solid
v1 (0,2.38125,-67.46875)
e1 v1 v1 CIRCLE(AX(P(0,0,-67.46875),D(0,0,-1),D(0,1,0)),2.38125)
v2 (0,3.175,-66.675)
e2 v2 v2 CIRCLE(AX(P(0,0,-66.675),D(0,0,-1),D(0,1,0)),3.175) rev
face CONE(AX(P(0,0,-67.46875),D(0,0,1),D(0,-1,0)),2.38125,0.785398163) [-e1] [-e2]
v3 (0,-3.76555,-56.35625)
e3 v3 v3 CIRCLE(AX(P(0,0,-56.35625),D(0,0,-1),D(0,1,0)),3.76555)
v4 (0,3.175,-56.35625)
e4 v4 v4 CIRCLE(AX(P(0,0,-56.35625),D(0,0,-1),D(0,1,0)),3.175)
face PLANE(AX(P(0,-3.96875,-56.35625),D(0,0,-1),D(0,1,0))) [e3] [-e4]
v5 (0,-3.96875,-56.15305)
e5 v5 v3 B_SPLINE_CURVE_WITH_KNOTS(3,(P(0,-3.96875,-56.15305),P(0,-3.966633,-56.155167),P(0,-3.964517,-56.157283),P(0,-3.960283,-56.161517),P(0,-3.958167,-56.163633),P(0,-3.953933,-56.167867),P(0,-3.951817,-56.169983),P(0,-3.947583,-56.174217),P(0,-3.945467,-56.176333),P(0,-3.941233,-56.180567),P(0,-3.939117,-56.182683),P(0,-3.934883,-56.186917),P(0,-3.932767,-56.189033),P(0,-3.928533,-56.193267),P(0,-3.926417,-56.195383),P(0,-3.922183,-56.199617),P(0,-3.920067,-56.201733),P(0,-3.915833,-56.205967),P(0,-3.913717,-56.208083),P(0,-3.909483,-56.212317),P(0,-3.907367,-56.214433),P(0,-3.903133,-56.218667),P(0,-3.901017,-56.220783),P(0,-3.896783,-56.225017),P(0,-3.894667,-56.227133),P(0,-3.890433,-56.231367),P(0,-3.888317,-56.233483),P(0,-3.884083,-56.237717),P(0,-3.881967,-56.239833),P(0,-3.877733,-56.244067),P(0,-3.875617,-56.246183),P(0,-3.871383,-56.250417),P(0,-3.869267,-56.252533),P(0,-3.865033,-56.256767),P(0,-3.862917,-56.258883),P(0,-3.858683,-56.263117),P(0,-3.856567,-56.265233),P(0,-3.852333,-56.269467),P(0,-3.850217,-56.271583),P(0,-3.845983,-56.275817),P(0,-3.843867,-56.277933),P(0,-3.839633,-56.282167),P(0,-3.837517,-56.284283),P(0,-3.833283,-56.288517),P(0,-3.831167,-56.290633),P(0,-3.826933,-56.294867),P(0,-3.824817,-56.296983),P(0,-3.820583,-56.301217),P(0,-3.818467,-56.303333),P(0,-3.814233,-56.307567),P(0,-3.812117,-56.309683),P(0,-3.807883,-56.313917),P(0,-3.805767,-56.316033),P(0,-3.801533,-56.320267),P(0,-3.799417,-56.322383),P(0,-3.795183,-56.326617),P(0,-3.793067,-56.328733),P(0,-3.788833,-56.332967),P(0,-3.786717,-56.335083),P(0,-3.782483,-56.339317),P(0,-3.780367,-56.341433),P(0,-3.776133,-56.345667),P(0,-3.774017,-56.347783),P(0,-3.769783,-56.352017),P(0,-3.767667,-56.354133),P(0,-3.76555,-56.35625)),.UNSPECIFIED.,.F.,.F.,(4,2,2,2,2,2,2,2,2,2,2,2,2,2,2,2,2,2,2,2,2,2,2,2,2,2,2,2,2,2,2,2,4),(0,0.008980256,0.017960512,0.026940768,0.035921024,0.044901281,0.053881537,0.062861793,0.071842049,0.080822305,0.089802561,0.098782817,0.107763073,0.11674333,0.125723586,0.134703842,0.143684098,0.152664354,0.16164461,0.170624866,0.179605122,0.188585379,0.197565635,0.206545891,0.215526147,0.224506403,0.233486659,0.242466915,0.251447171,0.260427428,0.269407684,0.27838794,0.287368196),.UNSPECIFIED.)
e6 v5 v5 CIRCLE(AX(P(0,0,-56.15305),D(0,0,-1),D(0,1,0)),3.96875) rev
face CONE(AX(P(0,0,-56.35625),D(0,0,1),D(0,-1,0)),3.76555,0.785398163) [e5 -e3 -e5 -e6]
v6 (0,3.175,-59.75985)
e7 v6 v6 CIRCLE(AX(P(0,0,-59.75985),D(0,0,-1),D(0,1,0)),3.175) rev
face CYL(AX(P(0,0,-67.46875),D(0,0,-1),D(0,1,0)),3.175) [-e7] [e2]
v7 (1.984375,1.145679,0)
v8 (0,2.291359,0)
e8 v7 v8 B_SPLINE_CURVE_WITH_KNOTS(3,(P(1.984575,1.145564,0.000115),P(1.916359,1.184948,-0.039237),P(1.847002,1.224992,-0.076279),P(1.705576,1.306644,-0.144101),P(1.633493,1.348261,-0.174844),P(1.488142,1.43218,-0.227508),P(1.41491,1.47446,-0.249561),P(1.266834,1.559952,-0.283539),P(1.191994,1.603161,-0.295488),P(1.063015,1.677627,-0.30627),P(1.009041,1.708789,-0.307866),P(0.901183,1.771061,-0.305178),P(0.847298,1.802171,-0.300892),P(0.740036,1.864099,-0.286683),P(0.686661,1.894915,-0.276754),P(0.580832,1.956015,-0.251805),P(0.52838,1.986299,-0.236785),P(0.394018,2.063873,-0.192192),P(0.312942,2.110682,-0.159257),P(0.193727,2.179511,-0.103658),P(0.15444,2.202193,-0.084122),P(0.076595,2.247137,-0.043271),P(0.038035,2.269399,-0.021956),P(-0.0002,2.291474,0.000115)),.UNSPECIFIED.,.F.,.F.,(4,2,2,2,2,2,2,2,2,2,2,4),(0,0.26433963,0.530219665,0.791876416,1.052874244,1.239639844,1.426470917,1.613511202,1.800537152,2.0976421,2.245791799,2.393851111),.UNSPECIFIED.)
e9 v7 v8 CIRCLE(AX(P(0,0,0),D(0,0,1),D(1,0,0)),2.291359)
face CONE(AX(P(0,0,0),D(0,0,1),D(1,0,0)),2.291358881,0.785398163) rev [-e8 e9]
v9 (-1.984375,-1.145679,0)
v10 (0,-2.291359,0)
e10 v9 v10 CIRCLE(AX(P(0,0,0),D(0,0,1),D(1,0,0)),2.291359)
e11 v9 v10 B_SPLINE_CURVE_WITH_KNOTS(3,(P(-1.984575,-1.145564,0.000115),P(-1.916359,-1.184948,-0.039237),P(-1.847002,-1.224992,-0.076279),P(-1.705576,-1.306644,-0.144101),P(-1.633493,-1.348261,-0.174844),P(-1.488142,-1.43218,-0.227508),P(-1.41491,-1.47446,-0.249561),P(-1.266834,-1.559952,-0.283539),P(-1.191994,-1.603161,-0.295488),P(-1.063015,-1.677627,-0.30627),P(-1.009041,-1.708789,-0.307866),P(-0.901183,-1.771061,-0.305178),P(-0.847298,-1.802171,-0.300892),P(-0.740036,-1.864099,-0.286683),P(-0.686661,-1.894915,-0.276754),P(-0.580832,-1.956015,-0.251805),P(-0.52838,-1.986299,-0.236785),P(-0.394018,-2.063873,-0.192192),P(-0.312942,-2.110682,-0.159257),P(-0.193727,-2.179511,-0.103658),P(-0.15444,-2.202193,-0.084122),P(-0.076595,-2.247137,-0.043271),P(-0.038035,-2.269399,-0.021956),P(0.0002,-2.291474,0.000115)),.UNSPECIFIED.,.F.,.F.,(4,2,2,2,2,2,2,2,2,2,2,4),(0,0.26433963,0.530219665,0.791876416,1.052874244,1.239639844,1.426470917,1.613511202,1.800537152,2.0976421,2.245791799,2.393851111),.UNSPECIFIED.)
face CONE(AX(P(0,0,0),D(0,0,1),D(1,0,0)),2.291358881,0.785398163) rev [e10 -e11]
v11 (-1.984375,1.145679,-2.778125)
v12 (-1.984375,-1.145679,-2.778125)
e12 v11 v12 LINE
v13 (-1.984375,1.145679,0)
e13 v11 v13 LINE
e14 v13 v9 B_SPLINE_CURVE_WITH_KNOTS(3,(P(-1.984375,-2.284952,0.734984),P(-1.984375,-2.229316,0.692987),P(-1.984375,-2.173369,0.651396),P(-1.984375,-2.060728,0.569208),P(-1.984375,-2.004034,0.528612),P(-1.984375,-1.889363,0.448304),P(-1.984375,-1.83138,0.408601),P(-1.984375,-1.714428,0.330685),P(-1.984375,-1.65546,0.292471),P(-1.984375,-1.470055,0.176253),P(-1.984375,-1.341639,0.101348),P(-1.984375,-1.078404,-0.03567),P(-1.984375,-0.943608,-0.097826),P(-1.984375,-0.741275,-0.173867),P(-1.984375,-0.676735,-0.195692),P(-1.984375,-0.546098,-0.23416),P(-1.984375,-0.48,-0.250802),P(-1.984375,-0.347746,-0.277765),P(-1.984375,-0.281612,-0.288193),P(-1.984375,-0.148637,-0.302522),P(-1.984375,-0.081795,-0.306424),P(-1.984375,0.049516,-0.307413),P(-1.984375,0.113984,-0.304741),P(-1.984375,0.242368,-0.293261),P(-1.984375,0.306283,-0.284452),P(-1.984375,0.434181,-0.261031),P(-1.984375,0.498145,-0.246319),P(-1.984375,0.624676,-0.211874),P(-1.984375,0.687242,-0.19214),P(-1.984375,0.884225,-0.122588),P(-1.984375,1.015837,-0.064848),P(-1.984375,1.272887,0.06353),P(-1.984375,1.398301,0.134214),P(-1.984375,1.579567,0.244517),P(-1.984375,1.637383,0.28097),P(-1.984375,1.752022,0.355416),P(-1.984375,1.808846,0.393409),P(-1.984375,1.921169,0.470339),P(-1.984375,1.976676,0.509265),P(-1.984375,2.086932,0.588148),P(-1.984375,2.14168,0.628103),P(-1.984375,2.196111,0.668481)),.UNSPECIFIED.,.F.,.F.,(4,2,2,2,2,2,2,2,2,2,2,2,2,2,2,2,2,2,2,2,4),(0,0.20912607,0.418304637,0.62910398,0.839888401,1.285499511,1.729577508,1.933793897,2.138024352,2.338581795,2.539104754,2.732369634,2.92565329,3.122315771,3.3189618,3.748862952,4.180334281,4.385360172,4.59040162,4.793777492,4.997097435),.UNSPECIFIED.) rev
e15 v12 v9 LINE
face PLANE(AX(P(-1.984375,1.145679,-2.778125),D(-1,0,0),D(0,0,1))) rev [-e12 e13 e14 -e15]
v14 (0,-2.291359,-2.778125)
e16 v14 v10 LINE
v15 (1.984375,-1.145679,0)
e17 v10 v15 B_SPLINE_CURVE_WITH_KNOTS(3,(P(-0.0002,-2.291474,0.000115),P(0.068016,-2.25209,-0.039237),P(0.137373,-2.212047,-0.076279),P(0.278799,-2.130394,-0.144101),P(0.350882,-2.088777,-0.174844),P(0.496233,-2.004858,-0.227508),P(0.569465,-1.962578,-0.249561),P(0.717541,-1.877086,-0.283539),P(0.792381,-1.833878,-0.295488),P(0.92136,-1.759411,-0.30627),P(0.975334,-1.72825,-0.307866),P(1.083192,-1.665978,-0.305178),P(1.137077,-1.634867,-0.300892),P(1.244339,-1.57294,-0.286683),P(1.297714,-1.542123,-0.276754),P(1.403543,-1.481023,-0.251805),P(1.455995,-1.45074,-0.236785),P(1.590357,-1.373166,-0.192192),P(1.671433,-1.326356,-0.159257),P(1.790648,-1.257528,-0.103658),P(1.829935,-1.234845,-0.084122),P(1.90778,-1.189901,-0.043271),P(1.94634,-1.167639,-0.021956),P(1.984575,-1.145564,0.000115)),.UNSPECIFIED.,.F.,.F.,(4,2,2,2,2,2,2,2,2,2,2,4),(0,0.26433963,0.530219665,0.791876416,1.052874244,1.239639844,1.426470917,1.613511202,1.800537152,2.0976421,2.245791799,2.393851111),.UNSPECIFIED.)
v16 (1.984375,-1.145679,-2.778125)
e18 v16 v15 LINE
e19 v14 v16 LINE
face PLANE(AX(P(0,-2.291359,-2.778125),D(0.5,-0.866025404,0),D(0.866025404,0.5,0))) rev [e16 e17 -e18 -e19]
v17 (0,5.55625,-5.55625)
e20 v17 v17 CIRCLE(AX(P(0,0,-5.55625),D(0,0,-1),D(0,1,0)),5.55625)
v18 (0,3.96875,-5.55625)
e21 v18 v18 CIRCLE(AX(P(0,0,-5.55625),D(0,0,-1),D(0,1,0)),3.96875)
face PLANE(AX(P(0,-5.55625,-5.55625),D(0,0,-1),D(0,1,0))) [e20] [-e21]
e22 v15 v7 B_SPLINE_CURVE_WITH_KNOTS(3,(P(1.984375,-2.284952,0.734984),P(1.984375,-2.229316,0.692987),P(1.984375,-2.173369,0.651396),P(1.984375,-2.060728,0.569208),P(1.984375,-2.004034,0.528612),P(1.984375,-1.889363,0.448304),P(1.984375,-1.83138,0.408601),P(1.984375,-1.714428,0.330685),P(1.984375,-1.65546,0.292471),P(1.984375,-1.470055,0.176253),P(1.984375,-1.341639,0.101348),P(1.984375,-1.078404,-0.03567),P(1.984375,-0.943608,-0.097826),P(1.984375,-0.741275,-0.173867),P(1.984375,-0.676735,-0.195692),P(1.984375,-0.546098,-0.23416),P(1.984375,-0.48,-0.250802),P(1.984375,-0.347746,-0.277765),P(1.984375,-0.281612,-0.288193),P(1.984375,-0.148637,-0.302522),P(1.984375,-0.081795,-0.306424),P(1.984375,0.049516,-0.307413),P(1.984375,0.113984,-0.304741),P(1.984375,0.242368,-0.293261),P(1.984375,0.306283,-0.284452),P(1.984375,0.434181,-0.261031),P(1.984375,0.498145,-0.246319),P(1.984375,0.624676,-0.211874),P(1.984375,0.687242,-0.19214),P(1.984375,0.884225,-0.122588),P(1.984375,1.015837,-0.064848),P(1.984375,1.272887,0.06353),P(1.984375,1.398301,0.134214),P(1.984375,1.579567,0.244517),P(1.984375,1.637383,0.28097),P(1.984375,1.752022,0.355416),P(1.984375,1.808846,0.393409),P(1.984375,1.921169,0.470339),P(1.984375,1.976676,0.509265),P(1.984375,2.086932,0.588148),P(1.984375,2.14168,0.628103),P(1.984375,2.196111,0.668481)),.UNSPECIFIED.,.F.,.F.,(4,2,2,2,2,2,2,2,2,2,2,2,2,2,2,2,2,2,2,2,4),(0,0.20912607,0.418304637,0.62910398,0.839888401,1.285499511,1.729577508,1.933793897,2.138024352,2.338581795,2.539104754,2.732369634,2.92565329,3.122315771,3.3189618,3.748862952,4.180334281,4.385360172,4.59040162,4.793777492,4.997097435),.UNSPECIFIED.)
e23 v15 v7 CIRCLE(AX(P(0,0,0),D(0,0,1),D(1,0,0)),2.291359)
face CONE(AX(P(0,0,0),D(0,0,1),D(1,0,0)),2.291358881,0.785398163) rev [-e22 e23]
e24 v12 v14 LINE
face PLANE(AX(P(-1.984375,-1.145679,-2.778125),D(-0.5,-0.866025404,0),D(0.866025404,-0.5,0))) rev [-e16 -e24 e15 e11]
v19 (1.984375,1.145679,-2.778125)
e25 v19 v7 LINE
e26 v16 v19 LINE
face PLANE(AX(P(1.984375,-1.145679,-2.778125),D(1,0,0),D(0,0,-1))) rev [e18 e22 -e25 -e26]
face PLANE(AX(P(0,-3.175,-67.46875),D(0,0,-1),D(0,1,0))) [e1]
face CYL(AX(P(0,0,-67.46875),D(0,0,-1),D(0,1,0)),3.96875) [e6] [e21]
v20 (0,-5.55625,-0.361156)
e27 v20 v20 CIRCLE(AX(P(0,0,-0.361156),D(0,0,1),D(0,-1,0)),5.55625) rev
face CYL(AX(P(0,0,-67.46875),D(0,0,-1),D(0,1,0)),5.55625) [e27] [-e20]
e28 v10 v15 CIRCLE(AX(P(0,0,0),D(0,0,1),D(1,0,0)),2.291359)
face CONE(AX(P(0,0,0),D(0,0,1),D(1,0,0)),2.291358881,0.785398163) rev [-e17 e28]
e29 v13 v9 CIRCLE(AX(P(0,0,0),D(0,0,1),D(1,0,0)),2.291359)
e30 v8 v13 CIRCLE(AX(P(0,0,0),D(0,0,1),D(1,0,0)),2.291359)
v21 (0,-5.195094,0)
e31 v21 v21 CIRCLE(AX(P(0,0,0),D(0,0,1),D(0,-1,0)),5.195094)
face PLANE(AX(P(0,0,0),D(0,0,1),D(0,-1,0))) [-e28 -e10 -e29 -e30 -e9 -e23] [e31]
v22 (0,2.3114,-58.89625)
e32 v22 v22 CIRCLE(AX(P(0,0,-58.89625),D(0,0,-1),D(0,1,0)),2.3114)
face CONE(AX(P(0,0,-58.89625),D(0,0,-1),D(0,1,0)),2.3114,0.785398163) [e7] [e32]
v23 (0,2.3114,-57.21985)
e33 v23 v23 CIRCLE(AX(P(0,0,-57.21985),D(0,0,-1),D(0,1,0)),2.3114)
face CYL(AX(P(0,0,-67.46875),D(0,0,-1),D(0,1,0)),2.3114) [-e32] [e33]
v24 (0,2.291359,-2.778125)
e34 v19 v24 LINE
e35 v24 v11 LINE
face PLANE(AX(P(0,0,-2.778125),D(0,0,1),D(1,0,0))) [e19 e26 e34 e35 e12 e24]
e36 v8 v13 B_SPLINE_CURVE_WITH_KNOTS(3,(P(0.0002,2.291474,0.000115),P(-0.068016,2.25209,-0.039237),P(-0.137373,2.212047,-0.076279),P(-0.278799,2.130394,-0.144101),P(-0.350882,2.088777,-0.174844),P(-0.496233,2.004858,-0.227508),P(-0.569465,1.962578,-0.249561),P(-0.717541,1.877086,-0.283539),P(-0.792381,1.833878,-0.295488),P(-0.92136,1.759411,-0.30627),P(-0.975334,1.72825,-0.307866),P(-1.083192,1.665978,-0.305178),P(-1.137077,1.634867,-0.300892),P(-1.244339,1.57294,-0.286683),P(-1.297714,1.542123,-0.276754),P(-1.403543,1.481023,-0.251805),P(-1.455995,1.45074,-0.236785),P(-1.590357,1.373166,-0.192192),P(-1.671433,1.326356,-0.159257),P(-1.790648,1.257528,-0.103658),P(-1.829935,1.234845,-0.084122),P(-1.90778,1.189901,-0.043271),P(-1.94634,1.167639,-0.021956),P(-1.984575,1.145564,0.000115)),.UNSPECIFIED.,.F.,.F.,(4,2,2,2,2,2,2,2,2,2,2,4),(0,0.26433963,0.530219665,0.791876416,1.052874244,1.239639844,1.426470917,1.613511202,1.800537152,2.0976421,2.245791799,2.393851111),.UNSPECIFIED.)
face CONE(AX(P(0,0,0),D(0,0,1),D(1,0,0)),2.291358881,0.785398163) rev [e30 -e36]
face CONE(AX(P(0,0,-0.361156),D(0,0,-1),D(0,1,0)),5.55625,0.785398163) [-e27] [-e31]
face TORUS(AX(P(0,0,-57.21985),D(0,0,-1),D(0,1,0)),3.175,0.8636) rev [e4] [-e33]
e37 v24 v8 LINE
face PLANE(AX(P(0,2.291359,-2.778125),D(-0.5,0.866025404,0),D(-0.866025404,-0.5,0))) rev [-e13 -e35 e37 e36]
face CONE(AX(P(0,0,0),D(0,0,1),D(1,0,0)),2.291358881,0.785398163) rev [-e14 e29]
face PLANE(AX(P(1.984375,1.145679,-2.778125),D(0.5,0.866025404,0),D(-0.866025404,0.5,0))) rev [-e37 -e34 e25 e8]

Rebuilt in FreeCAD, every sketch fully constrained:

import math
import FreeCAD as App
import Part
import Sketcher
from FreeCAD import Vector
Q = App.Units.Quantity


def edges_at(feature, points):
    """Names of the edges that pass closest to the given points."""
    edges = feature.Shape.Edges
    near = lambda p: min(range(len(edges)), key=lambda i: edges[i].distToShape(Part.Vertex(*p))[0])
    return sorted({f"Edge{near(p) + 1}" for p in points})


def add_polygon(sketch, points):
    """Adds a closed chain of lines whose ends are joined by coincident constraints."""
    first, n = sketch.GeometryCount, len(points)
    for a, b in zip(points, points[1:] + points[:1]):
        sketch.addGeometry(Part.LineSegment(App.Vector(*a, 0), App.Vector(*b, 0)), False)
    for i in range(n):
        sketch.addConstraint(Sketcher.Constraint("Coincident", first + i, 2, first + (i + 1) % n, 1))

doc = App.newDocument("Part")
body = doc.addObject("PartDesign::Body", "Body")

sketch1 = doc.addObject("Sketcher::SketchObject", "Sketch")
body.addObject(sketch1)
sketch1.AttachmentSupport = (doc.YZ_Plane, [""])
sketch1.MapMode = "FlatFace"
add_polygon(sketch1, [(5.55625, -5.55625), (5.55625, 0), (0, 0), (0, -67.46875), (3.175, -67.46875), (3.175, -56.35625), (3.96875, -56.35625), (3.96875, -5.55625)])
sketch1.addConstraint([
    Sketcher.Constraint("Vertical", 0),
    Sketcher.Constraint("Horizontal", 1),
    Sketcher.Constraint("Vertical", 2),
    Sketcher.Constraint("Horizontal", 3),
    Sketcher.Constraint("Vertical", 4),
    Sketcher.Constraint("Horizontal", 5),
    Sketcher.Constraint("Vertical", 6),
    Sketcher.Constraint("Horizontal", 7),
    Sketcher.Constraint("Coincident", 1, 2, -1, 1),
    Sketcher.Constraint("Equal", 1, 0),
    Sketcher.Constraint("DistanceY", 6, 1, 6, 2, Q("2 in")),
    Sketcher.Constraint("DistanceX", 1, 2, 1, 1, Q("0.21875 in")),
    Sketcher.Constraint("DistanceX", 3, 1, 3, 2, Q("0.125 in")),
    Sketcher.Constraint("DistanceX", 5, 1, 5, 2, Q("0.03125 in")),
    Sketcher.Constraint("DistanceY", 2, 2, 2, 1, Q("2.65625 in")),
])
revolution = doc.addObject("PartDesign::Revolution", "Revolution")
body.addObject(revolution)
revolution.Profile = sketch1
revolution.ReferenceAxis = (sketch1, ["V_Axis"])
revolution.Angle = 360

sketch2 = doc.addObject("Sketcher::SketchObject", "Sketch001")
body.addObject(sketch2)
sketch2.AttachmentSupport = (doc.YZ_Plane, [""])
sketch2.MapMode = "FlatFace"
sketch2.addGeometry([
    Part.LineSegment(Vector(3.96875, -60.5536, 0), Vector(3.96875, -56.35625, 0)),
    Part.LineSegment(Vector(3.96875, -56.35625, 0), Vector(3.175, -56.35625, 0)),
    Part.ArcOfCircle(Part.Circle(Vector(3.175, -57.21985, 0), Vector(0, 0, 1), 0.8636), math.radians(90), math.radians(180)),
    Part.LineSegment(Vector(2.3114, -57.21985, 0), Vector(2.3114, -58.89625, 0)),
    Part.LineSegment(Vector(2.3114, -58.89625, 0), Vector(3.96875, -60.5536, 0)),
], False)
sketch2.addConstraint([
    Sketcher.Constraint("Coincident", 0, 2, 1, 1),
    Sketcher.Constraint("Tangent", 1, 2, 2, 1),
    Sketcher.Constraint("Tangent", 2, 2, 3, 1),
    Sketcher.Constraint("Coincident", 3, 2, 4, 1),
    Sketcher.Constraint("Coincident", 4, 2, 0, 1),
    Sketcher.Constraint("Vertical", 0),
    Sketcher.Constraint("Horizontal", 1),
    Sketcher.Constraint("Vertical", 3),
    Sketcher.Constraint("Angle", 4, Q("-45 deg")),
    Sketcher.Constraint("Radius", 2, Q("0.034 in")),
    Sketcher.Constraint("DistanceY", 3, 2, 1, 2, Q("0.1 in")),
    Sketcher.Constraint("DistanceX", 1, 2, 1, 1, Q("0.03125 in")),
    Sketcher.Constraint("DistanceX", -1, 1, 2, 3, Q("0.125 in")),
    Sketcher.Constraint("DistanceY", 0, 2, -1, 1, Q("2.21875 in")),
])
groove = doc.addObject("PartDesign::Groove", "Groove")
body.addObject(groove)
groove.Profile = sketch2
groove.ReferenceAxis = (sketch2, ["V_Axis"])
groove.Angle = 360
doc.recompute()

chamfer = doc.addObject("PartDesign::Chamfer", "Chamfer")
body.addObject(chamfer)
chamfer.Base = (groove, edges_at(groove, [(0, -3.175, -67.469)]))
chamfer.Size = Q("0.03125 in")
doc.recompute()

chamfer2 = doc.addObject("PartDesign::Chamfer", "Chamfer001")
body.addObject(chamfer2)
chamfer2.Base = (chamfer, edges_at(chamfer, [(0, -5.556, 0)]))
chamfer2.Size = 0.361156
doc.recompute()

chamfer3 = doc.addObject("PartDesign::Chamfer", "Chamfer002")
body.addObject(chamfer3)
chamfer3.Base = (chamfer2, edges_at(chamfer2, [(0, -3.969, -56.356)]))
chamfer3.Size = Q("0.008 in")

sketch3 = doc.addObject("Sketcher::SketchObject", "Sketch002")
body.addObject(sketch3)
sketch3.AttachmentSupport = (doc.XY_Plane, [""])
sketch3.MapMode = "FlatFace"
add_polygon(sketch3, [(1.984375, 1.145679), (0, 2.291359), (-1.984375, 1.145679), (-1.984375, -1.145679), (0, -2.291359), (1.984375, -1.145679)])
sketch3.addConstraint([
    Sketcher.Constraint("Vertical", 2),
    Sketcher.Constraint("Vertical", 5),
    Sketcher.Constraint("Symmetric", 0, 2, 3, 2, -1, 1),
    Sketcher.Constraint("Symmetric", 1, 2, 4, 2, -1, 1),
    Sketcher.Constraint("PointOnObject", 0, 2, -2),
    Sketcher.Constraint("Parallel", 0, 3),
    Sketcher.Constraint("Horizontal", 2, 2, 4, 2),
    Sketcher.Constraint("Angle", 0, Q("150 deg")),
    Sketcher.Constraint("DistanceX", 1, 2, -1, 1, Q("0.078125 in")),
    Sketcher.Constraint("DistanceY", 2, 2, 2, 1, Q("2.291359 mm")),
])
pocket1 = doc.addObject("PartDesign::Pocket", "Pocket")
body.addObject(pocket1)
pocket1.Profile = sketch3
pocket1.Length = Q("0.109375 in")

sketch4 = doc.addObject("Sketcher::SketchObject", "Sketch003")
body.addObject(sketch4)
sketch4.AttachmentSupport = (doc.YZ_Plane, [""])
sketch4.MapMode = "FlatFace"
add_polygon(sketch4, [(0, 0), (-2.291359, 0), (0, -2.291359)])
sketch4.addConstraint([
    Sketcher.Constraint("Horizontal", 0),
    Sketcher.Constraint("Vertical", 2),
    Sketcher.Constraint("Coincident", 2, 2, -1, 1),
    Sketcher.Constraint("Equal", 0, 2),
    Sketcher.Constraint("DistanceX", 0, 2, 0, 1, Q("2.291359 mm")),
])
groove2 = doc.addObject("PartDesign::Groove", "Groove001")
body.addObject(groove2)
groove2.Profile = sketch4
groove2.ReferenceAxis = (sketch4, ["V_Axis"])
groove2.Angle = 360

doc.recompute()
